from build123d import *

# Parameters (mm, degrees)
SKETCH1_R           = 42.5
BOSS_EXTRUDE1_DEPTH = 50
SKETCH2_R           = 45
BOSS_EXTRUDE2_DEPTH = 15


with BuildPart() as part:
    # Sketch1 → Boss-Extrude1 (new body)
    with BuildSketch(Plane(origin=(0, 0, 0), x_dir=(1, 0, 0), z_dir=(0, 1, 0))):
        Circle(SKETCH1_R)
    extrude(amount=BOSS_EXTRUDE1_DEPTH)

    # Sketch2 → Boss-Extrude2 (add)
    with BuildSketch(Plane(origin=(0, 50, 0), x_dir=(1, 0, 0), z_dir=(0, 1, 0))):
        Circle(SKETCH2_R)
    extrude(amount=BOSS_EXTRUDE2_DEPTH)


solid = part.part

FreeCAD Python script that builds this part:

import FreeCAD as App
import Part
import Sketcher

V = App.Vector

doc = App.newDocument("Part")
body = doc.addObject("PartDesign::Body", "Body")

sketch1 = doc.addObject("Sketcher::SketchObject", "Sketch")
body.addObject(sketch1)
sketch1.AttachmentSupport = (doc.XZ_Plane, [""])
sketch1.MapMode = "FlatFace"
sketch1.addGeometry(Part.Circle(V(0, 0, 0), V(0, 0, 1), 42.5), False)
sketch1.addConstraint([
    Sketcher.Constraint("Coincident", 0, 3, -1, 1),
    Sketcher.Constraint("Diameter", 0, 85.0),
])
pad1 = doc.addObject("PartDesign::Pad", "Pad")
body.addObject(pad1)
pad1.Profile = sketch1
pad1.Length = 50
pad1.Reversed = True

sketch2 = doc.addObject("Sketcher::SketchObject", "Sketch001")
body.addObject(sketch2)
sketch2.AttachmentSupport = (doc.XZ_Plane, [""])
sketch2.MapMode = "FlatFace"
sketch2.AttachmentOffset = App.Placement(V(0, 0, -50), App.Rotation())
sketch2.addGeometry(Part.Circle(V(0, 0, 0), V(0, 0, 1), 45), False)
sketch2.addConstraint([
    Sketcher.Constraint("Coincident", 0, 3, -1, 1),
    Sketcher.Constraint("Diameter", 0, 90.0),
])
pad2 = doc.addObject("PartDesign::Pad", "Pad001")
body.addObject(pad2)
pad2.Profile = sketch2
pad2.Length = 15
pad2.Reversed = True

doc.recompute()
